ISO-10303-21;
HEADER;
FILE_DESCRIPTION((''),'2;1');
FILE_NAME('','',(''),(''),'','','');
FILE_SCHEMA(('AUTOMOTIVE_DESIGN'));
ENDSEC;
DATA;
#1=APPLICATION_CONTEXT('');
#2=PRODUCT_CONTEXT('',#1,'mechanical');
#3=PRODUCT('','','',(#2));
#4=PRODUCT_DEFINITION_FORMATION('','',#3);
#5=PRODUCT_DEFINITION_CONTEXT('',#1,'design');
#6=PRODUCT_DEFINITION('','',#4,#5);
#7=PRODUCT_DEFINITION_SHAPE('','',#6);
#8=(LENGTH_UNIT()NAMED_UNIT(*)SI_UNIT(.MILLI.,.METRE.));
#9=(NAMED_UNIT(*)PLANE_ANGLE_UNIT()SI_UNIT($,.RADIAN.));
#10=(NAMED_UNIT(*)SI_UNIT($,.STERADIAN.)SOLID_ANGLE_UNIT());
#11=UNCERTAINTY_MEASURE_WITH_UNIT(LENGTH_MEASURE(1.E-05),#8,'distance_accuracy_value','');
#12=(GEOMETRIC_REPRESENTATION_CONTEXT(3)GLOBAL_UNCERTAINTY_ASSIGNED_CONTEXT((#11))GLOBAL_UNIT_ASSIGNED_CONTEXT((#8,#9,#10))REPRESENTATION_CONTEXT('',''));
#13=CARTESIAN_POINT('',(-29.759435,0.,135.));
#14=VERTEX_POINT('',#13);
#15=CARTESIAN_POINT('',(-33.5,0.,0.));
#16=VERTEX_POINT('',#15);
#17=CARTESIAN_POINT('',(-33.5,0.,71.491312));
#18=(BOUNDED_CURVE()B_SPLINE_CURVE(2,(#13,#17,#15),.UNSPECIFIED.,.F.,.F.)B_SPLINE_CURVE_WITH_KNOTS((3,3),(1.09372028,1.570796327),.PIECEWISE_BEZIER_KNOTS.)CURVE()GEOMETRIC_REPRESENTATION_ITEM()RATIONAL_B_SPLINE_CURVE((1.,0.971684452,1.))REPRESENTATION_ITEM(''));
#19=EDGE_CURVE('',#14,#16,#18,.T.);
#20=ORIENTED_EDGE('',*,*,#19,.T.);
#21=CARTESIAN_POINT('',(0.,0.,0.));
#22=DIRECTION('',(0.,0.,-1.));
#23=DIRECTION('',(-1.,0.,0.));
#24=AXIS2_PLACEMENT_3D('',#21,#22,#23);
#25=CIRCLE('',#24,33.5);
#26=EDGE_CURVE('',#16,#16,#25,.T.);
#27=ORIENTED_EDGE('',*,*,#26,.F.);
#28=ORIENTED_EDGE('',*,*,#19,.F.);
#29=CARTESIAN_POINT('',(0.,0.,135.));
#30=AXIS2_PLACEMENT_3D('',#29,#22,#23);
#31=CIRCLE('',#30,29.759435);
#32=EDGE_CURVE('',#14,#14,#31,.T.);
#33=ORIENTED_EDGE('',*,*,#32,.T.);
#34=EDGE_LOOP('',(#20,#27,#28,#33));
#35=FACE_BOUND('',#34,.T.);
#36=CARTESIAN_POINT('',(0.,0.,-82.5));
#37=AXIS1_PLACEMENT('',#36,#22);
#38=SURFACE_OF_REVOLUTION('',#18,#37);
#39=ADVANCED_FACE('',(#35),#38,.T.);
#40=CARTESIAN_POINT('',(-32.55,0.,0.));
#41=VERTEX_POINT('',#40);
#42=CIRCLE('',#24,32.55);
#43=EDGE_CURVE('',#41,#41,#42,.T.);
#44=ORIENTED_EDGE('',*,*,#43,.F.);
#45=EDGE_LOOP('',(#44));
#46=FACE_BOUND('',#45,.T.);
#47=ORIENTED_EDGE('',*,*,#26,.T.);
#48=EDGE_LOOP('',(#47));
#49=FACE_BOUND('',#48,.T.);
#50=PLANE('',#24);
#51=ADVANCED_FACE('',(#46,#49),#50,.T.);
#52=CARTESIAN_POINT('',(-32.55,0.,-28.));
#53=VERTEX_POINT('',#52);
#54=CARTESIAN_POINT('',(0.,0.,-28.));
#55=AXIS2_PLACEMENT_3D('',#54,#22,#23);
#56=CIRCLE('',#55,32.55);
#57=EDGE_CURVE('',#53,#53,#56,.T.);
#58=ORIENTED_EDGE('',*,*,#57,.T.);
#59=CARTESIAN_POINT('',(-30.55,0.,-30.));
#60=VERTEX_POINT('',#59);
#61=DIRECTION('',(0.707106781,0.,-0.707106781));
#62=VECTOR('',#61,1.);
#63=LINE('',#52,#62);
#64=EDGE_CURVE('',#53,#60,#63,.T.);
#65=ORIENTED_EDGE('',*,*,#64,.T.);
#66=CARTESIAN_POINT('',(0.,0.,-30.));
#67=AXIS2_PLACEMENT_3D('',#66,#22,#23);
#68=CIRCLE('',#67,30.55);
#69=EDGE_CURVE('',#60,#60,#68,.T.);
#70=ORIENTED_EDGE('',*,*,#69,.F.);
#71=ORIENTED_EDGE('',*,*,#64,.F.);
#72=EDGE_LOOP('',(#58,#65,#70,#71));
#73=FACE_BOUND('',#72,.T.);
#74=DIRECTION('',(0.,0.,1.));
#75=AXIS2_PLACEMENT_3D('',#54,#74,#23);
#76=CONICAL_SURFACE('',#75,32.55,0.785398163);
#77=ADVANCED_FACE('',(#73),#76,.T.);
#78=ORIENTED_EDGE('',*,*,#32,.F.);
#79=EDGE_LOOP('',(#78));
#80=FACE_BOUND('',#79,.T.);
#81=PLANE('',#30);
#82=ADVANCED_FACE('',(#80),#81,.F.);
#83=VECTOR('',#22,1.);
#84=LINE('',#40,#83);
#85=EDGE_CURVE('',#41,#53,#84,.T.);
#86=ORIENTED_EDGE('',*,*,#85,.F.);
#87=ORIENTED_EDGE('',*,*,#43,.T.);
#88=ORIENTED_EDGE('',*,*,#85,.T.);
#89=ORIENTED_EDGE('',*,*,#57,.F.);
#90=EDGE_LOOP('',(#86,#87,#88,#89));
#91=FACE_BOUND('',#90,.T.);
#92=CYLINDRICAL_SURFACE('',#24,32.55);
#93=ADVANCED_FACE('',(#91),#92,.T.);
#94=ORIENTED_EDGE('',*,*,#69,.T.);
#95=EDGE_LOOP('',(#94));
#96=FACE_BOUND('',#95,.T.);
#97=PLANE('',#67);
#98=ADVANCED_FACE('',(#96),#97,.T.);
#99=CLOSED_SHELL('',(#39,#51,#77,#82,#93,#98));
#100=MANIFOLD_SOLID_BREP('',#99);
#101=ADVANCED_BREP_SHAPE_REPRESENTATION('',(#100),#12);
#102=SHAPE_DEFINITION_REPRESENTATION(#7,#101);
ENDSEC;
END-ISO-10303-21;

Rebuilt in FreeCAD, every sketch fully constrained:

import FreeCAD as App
import Part
import Sketcher

V = App.Vector


def edges_at(feature, points):
    """Names of the edges that pass closest to the given points."""
    edges = feature.Shape.Edges
    near = lambda p: min(range(len(edges)), key=lambda i: edges[i].distToShape(Part.Vertex(*p))[0])
    return sorted({f"Edge{near(p) + 1}" for p in points})

doc = App.newDocument("Part")
body = doc.addObject("PartDesign::Body", "Body")

# Sketch on XZ plane
sketch1 = doc.addObject("Sketcher::SketchObject", "Sketch")
body.addObject(sketch1)
sketch1.AttachmentSupport = (doc.XZ_Plane, [""])
sketch1.MapMode = "FlatFace"
sketch1.addGeometry(Part.BSplineCurve([V(-29.759435, 135, 0), V(-33.5, 71.491312, 0), V(-33.5, 0, 0)], [3, 3], [1.09372028, 1.570796327], False, 2, [1, 0.971684452, 1], False), False)
sketch1.addGeometry(Part.LineSegment(V(-33.5, 0, 0), V(-32.55, 0, 0)), False)
sketch1.addGeometry(Part.LineSegment(V(-32.55, 0, 0), V(-32.55, -30, 0)), False)
sketch1.addGeometry(Part.LineSegment(V(-32.55, -30, 0), V(0, -30, 0)), False)
sketch1.addGeometry(Part.LineSegment(V(0, -30, 0), V(0, 135, 0)), False)
sketch1.addGeometry(Part.LineSegment(V(0, 135, 0), V(-29.759435, 135, 0)), False)
sketch1.addConstraint(Sketcher.Constraint("Block", 0))
sketch1.addConstraint(Sketcher.Constraint("Coincident", 0, 2, 1, 1))
sketch1.addConstraint(Sketcher.Constraint("Coincident", 1, 2, 2, 1))
sketch1.addConstraint(Sketcher.Constraint("Coincident", 2, 2, 3, 1))
sketch1.addConstraint(Sketcher.Constraint("Coincident", 3, 2, 4, 1))
sketch1.addConstraint(Sketcher.Constraint("Coincident", 4, 2, 5, 1))
sketch1.addConstraint(Sketcher.Constraint("Coincident", 5, 2, 0, 1))
sketch1.addConstraint(Sketcher.Constraint("Horizontal", 1))
sketch1.addConstraint(Sketcher.Constraint("Vertical", 2))
sketch1.addConstraint(Sketcher.Constraint("Horizontal", 3))
sketch1.addConstraint(Sketcher.Constraint("Vertical", 4))
sketch1.addConstraint(Sketcher.Constraint("Horizontal", 5))
sketch1.addConstraint(Sketcher.Constraint("PointOnObject", 3, 2, -2))
sketch1.addConstraint(Sketcher.Constraint("DistanceY", 2, 2, 2, 1, 30.0))
sketch1.addConstraint(Sketcher.Constraint("DistanceX", 1, 1, 1, 2, 0.95))
revolution = doc.addObject("PartDesign::Revolution", "Revolution")
body.addObject(revolution)
revolution.Profile = sketch1
revolution.ReferenceAxis = (sketch1, ["V_Axis"])
revolution.Angle = 360
doc.recompute()

chamfer = doc.addObject("PartDesign::Chamfer", "Chamfer")
body.addObject(chamfer)
chamfer.Base = (revolution, edges_at(revolution, [(32.55, 0, -30)]))
chamfer.Size = 2

doc.recompute()
